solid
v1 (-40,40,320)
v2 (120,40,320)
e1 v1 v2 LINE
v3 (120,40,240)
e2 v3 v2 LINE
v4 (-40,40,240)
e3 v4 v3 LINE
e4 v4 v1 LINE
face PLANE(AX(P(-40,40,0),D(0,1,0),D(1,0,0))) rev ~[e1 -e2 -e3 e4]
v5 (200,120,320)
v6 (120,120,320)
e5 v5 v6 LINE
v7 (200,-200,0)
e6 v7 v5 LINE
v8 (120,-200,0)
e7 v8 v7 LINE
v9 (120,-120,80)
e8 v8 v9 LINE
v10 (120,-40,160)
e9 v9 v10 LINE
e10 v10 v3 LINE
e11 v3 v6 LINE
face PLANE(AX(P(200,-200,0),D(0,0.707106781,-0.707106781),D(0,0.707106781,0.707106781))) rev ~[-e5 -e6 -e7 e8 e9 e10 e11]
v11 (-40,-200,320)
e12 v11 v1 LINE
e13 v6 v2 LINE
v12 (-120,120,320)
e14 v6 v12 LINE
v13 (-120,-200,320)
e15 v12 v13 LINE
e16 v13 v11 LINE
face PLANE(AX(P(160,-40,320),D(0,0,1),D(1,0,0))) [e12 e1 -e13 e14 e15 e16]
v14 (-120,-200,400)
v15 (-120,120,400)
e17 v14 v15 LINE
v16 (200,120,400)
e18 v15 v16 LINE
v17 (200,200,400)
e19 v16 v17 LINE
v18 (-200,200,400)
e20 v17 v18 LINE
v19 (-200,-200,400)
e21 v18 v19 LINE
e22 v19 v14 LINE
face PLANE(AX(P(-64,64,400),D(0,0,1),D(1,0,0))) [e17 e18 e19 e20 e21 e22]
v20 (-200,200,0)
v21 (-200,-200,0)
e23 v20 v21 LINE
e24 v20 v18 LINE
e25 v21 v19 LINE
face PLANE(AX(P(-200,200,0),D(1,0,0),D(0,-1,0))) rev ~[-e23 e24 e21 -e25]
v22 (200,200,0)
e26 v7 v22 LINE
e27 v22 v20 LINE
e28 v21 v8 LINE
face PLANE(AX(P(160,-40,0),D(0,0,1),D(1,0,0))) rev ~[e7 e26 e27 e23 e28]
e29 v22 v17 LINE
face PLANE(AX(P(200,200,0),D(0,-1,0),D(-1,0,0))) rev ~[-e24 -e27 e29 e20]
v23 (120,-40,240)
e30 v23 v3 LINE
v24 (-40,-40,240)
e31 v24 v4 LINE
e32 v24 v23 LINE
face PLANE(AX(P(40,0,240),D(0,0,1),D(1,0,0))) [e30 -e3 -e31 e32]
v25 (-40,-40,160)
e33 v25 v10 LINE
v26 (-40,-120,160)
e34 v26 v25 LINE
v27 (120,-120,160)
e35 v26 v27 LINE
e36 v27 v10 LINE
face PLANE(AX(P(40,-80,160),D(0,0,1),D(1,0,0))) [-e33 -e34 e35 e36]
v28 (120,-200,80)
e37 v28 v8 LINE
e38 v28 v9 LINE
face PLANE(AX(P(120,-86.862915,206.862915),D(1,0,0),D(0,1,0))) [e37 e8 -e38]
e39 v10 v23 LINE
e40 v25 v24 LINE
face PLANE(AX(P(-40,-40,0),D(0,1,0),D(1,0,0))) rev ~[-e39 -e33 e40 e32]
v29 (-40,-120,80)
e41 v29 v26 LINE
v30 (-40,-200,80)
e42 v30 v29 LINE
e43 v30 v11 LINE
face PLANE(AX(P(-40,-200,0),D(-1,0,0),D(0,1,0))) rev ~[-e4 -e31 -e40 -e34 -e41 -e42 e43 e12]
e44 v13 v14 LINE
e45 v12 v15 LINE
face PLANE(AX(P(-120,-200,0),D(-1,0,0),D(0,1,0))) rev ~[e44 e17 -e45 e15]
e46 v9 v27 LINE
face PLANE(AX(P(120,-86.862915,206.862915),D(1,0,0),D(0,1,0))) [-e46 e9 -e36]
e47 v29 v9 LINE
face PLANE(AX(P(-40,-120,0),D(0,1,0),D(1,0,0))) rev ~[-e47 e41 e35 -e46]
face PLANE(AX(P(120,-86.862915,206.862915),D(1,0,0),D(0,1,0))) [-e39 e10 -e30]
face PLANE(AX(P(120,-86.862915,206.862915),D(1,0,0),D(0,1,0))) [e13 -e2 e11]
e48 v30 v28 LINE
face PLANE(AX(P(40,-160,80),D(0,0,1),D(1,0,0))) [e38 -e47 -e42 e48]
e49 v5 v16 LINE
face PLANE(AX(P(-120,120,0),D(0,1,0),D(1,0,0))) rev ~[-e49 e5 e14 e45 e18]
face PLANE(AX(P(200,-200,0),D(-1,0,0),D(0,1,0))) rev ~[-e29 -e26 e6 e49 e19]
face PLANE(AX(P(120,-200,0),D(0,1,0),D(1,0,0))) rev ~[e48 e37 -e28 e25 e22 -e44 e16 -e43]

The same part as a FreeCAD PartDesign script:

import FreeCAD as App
import Part
import Sketcher
from FreeCAD import Vector

doc = App.newDocument("Part")
body = doc.addObject("PartDesign::Body", "Body")

sketch1 = body.newObject("Sketcher::SketchObject", "Sketch")
sketch1.AttachmentSupport = (doc.getObject("XY_Plane"), [""])
sketch1.MapMode = "FlatFace"
sketch1.addGeometry(Part.LineSegment(Vector(200, 200, 0), Vector(-200, 200, 0)), False)
sketch1.addGeometry(Part.LineSegment(Vector(-200, 200, 0), Vector(-200, -200, 0)), False)
sketch1.addGeometry(Part.LineSegment(Vector(-200, -200, 0), Vector(-120, -200, 0)), False)
sketch1.addGeometry(Part.LineSegment(Vector(-120, -200, 0), Vector(-120, 120, 0)), False)
sketch1.addGeometry(Part.LineSegment(Vector(-120, 120, 0), Vector(200, 120, 0)), False)
sketch1.addGeometry(Part.LineSegment(Vector(200, 120, 0), Vector(200, 200, 0)), False)
sketch1.addConstraint(Sketcher.Constraint("Coincident", 0, 2, 1, 1))
sketch1.addConstraint(Sketcher.Constraint("Coincident", 1, 2, 2, 1))
sketch1.addConstraint(Sketcher.Constraint("Coincident", 2, 2, 3, 1))
sketch1.addConstraint(Sketcher.Constraint("Coincident", 3, 2, 4, 1))
sketch1.addConstraint(Sketcher.Constraint("Coincident", 4, 2, 5, 1))
sketch1.addConstraint(Sketcher.Constraint("Coincident", 5, 2, 0, 1))
sketch1.addConstraint(Sketcher.Constraint("Horizontal", 0))
sketch1.addConstraint(Sketcher.Constraint("Vertical", 1))
sketch1.addConstraint(Sketcher.Constraint("Horizontal", 2))
sketch1.addConstraint(Sketcher.Constraint("Vertical", 3))
sketch1.addConstraint(Sketcher.Constraint("Horizontal", 4))
sketch1.addConstraint(Sketcher.Constraint("Vertical", 5))
sketch1.addConstraint(Sketcher.Constraint("Symmetric", 1, 2, 5, 2, -1, 1))
sketch1.addConstraint(Sketcher.Constraint("Equal", 0, 1))
sketch1.addConstraint(Sketcher.Constraint("Equal", 4, 3))
sketch1.addConstraint(Sketcher.Constraint("DistanceX", 0, 2, 0, 1, 400.0))
sketch1.addConstraint(Sketcher.Constraint("DistanceX", 2, 1, 2, 2, 80.0))
pad1 = body.newObject("PartDesign::Pad", "Pad")
pad1.Profile = sketch1
pad1.Length = 400
body2 = doc.addObject("PartDesign::Body", "Body001")

sketch2 = body2.newObject("Sketcher::SketchObject", "Sketch001")
sketch2.AttachmentSupport = (doc.getObject("XY_Plane001"), [""])
sketch2.MapMode = "FlatFace"
sketch2.addGeometry(Part.LineSegment(Vector(-40, -120, 0), Vector(-40, -200, 0)), False)
sketch2.addGeometry(Part.LineSegment(Vector(-40, -200, 0), Vector(120, -200, 0)), False)
sketch2.addGeometry(Part.LineSegment(Vector(120, -200, 0), Vector(120, -120, 0)), False)
sketch2.addGeometry(Part.LineSegment(Vector(120, -120, 0), Vector(-40, -120, 0)), False)
sketch2.addConstraint(Sketcher.Constraint("Coincident", 0, 2, 1, 1))
sketch2.addConstraint(Sketcher.Constraint("Coincident", 1, 2, 2, 1))
sketch2.addConstraint(Sketcher.Constraint("Coincident", 2, 2, 3, 1))
sketch2.addConstraint(Sketcher.Constraint("Coincident", 3, 2, 0, 1))
sketch2.addConstraint(Sketcher.Constraint("Vertical", 0))
sketch2.addConstraint(Sketcher.Constraint("Horizontal", 1))
sketch2.addConstraint(Sketcher.Constraint("Vertical", 2))
sketch2.addConstraint(Sketcher.Constraint("Horizontal", 3))
sketch2.addConstraint(Sketcher.Constraint("DistanceX", 1, 1, 1, 2, 160.0))
sketch2.addConstraint(Sketcher.Constraint("DistanceY", 0, 2, 0, 1, 80.0))
sketch2.addConstraint(Sketcher.Constraint("DistanceX", 0, 2, -1, 1, 40.0))
sketch2.addConstraint(Sketcher.Constraint("DistanceY", 0, 2, -1, 1, 200.0))
pad2 = body2.newObject("PartDesign::Pad", "Pad001")
pad2.Profile = sketch2
pad2.Length = 80

sketch3 = body2.newObject("Sketcher::SketchObject", "Sketch002")
sketch3.AttachmentSupport = (doc.getObject("XY_Plane001"), [""])
sketch3.MapMode = "FlatFace"
sketch3.addGeometry(Part.LineSegment(Vector(-40, -40, 0), Vector(-40, -120, 0)), False)
sketch3.addGeometry(Part.LineSegment(Vector(-40, -120, 0), Vector(120, -120, 0)), False)
sketch3.addGeometry(Part.LineSegment(Vector(120, -120, 0), Vector(120, -40, 0)), False)
sketch3.addGeometry(Part.LineSegment(Vector(120, -40, 0), Vector(-40, -40, 0)), False)
sketch3.addConstraint(Sketcher.Constraint("Coincident", 0, 2, 1, 1))
sketch3.addConstraint(Sketcher.Constraint("Coincident", 1, 2, 2, 1))
sketch3.addConstraint(Sketcher.Constraint("Coincident", 2, 2, 3, 1))
sketch3.addConstraint(Sketcher.Constraint("Coincident", 3, 2, 0, 1))
sketch3.addConstraint(Sketcher.Constraint("Vertical", 0))
sketch3.addConstraint(Sketcher.Constraint("Horizontal", 1))
sketch3.addConstraint(Sketcher.Constraint("Vertical", 2))
sketch3.addConstraint(Sketcher.Constraint("Horizontal", 3))
sketch3.addConstraint(Sketcher.Constraint("DistanceX", 1, 1, 1, 2, 160.0))
sketch3.addConstraint(Sketcher.Constraint("DistanceY", 0, 2, 0, 1, 80.0))
sketch3.addConstraint(Sketcher.Constraint("DistanceX", 0, 2, -1, 1, 40.0))
sketch3.addConstraint(Sketcher.Constraint("DistanceY", 0, 2, -1, 1, 120.0))
pad3 = body2.newObject("PartDesign::Pad", "Pad002")
pad3.Profile = sketch3
pad3.Length = 160

sketch4 = body2.newObject("Sketcher::SketchObject", "Sketch003")
sketch4.AttachmentSupport = (doc.getObject("XY_Plane001"), [""])
sketch4.MapMode = "FlatFace"
sketch4.addGeometry(Part.LineSegment(Vector(-40, 40, 0), Vector(-40, -40, 0)), False)
sketch4.addGeometry(Part.LineSegment(Vector(-40, -40, 0), Vector(120, -40, 0)), False)
sketch4.addGeometry(Part.LineSegment(Vector(120, -40, 0), Vector(120, 40, 0)), False)
sketch4.addGeometry(Part.LineSegment(Vector(120, 40, 0), Vector(-40, 40, 0)), False)
sketch4.addConstraint(Sketcher.Constraint("Coincident", 0, 2, 1, 1))
sketch4.addConstraint(Sketcher.Constraint("Coincident", 1, 2, 2, 1))
sketch4.addConstraint(Sketcher.Constraint("Coincident", 2, 2, 3, 1))
sketch4.addConstraint(Sketcher.Constraint("Coincident", 3, 2, 0, 1))
sketch4.addConstraint(Sketcher.Constraint("Vertical", 0))
sketch4.addConstraint(Sketcher.Constraint("Horizontal", 1))
sketch4.addConstraint(Sketcher.Constraint("Vertical", 2))
sketch4.addConstraint(Sketcher.Constraint("Horizontal", 3))
sketch4.addConstraint(Sketcher.Constraint("DistanceX", 1, 1, 1, 2, 160.0))
sketch4.addConstraint(Sketcher.Constraint("DistanceY", 0, 2, 0, 1, 80.0))
sketch4.addConstraint(Sketcher.Constraint("DistanceX", 0, 2, -1, 1, 40.0))
sketch4.addConstraint(Sketcher.Constraint("DistanceY", 0, 2, -1, 1, 40.0))
pad4 = body2.newObject("PartDesign::Pad", "Pad003")
pad4.Profile = sketch4
pad4.Length = 240
body.AllowCompound = True
doc.recompute()

boolean = body.newObject("PartDesign::Boolean", "Boolean")
boolean.Type = "Fuse"
boolean.addObjects([body2])

sketch5 = body.newObject("Sketcher::SketchObject", "Sketch004")
sketch5.AttachmentSupport = (doc.getObject("XY_Plane"), [""])
sketch5.MapMode = "FlatFace"
sketch5.addGeometry(Part.LineSegment(Vector(-120, 120, 0), Vector(-120, -200, 0)), False)
sketch5.addGeometry(Part.LineSegment(Vector(-120, -200, 0), Vector(-40, -200, 0)), False)
sketch5.addGeometry(Part.LineSegment(Vector(-40, -200, 0), Vector(-40, 40, 0)), False)
sketch5.addGeometry(Part.LineSegment(Vector(-40, 40, 0), Vector(120, 40, 0)), False)
sketch5.addGeometry(Part.LineSegment(Vector(120, 40, 0), Vector(120, 120, 0)), False)
sketch5.addGeometry(Part.LineSegment(Vector(120, 120, 0), Vector(-120, 120, 0)), False)
sketch5.addConstraint(Sketcher.Constraint("Coincident", 0, 2, 1, 1))
sketch5.addConstraint(Sketcher.Constraint("Coincident", 1, 2, 2, 1))
sketch5.addConstraint(Sketcher.Constraint("Coincident", 2, 2, 3, 1))
sketch5.addConstraint(Sketcher.Constraint("Coincident", 3, 2, 4, 1))
sketch5.addConstraint(Sketcher.Constraint("Coincident", 4, 2, 5, 1))
sketch5.addConstraint(Sketcher.Constraint("Coincident", 5, 2, 0, 1))
sketch5.addConstraint(Sketcher.Constraint("Vertical", 0))
sketch5.addConstraint(Sketcher.Constraint("Horizontal", 1))
sketch5.addConstraint(Sketcher.Constraint("Vertical", 2))
sketch5.addConstraint(Sketcher.Constraint("Horizontal", 3))
sketch5.addConstraint(Sketcher.Constraint("Vertical", 4))
sketch5.addConstraint(Sketcher.Constraint("Horizontal", 5))
sketch5.addConstraint(Sketcher.Constraint("Equal", 5, 2))
sketch5.addConstraint(Sketcher.Constraint("Equal", 1, 4))
sketch5.addConstraint(Sketcher.Constraint("DistanceX", 1, 1, 1, 2, 80.0))
sketch5.addConstraint(Sketcher.Constraint("DistanceX", 3, 1, 3, 2, 160.0))
sketch5.addConstraint(Sketcher.Constraint("DistanceX", 0, 2, -1, 1, 120.0))
sketch5.addConstraint(Sketcher.Constraint("DistanceY", 0, 2, -1, 1, 200.0))
pad5 = body.newObject("PartDesign::Pad", "Pad004")
pad5.Profile = sketch5
pad5.Length = 320

sketch6 = body.newObject("Sketcher::SketchObject", "Sketch005")
sketch6.AttachmentSupport = (doc.getObject("XY_Plane"), [""])
sketch6.MapMode = "FlatFace"
sketch6.addGeometry(Part.LineSegment(Vector(200, -200, 0), Vector(200, 120, 0)), False)
sketch6.addGeometry(Part.LineSegment(Vector(200, 120, 0), Vector(120, 120, 0)), False)
sketch6.addGeometry(Part.LineSegment(Vector(120, 120, 0), Vector(120, -200, 0)), False)
sketch6.addGeometry(Part.LineSegment(Vector(120, -200, 0), Vector(200, -200, 0)), False)
sketch6.addConstraint(Sketcher.Constraint("Coincident", 0, 2, 1, 1))
sketch6.addConstraint(Sketcher.Constraint("Coincident", 1, 2, 2, 1))
sketch6.addConstraint(Sketcher.Constraint("Coincident", 2, 2, 3, 1))
sketch6.addConstraint(Sketcher.Constraint("Coincident", 3, 2, 0, 1))
sketch6.addConstraint(Sketcher.Constraint("Vertical", 0))
sketch6.addConstraint(Sketcher.Constraint("Horizontal", 1))
sketch6.addConstraint(Sketcher.Constraint("Vertical", 2))
sketch6.addConstraint(Sketcher.Constraint("Horizontal", 3))
sketch6.addConstraint(Sketcher.Constraint("DistanceX", 1, 2, 1, 1, 80.0))
sketch6.addConstraint(Sketcher.Constraint("DistanceY", 0, 1, 0, 2, 320.0))
sketch6.addConstraint(Sketcher.Constraint("DistanceX", -1, 1, 0, 2, 200.0))
sketch6.addConstraint(Sketcher.Constraint("DistanceY", -1, 1, 0, 2, 120.0))
pad6 = body.newObject("PartDesign::Pad", "Pad005")
pad6.Profile = sketch6
pad6.Length = 320

sketch7 = body.newObject("Sketcher::SketchObject", "Sketch006")
sketch7.AttachmentSupport = (doc.getObject("YZ_Plane"), [""])
sketch7.MapMode = "FlatFace"
sketch7.AttachmentOffset = App.Placement(Vector(0, 0, 200), App.Rotation())
sketch7.addGeometry(Part.LineSegment(Vector(-200, 0, 0), Vector(120, 320, 0)), False)
sketch7.addGeometry(Part.LineSegment(Vector(120, 320, 0), Vector(-200, 320, 0)), False)
sketch7.addGeometry(Part.LineSegment(Vector(-200, 320, 0), Vector(-200, 0, 0)), False)
sketch7.addConstraint(Sketcher.Constraint("Coincident", 0, 2, 1, 1))
sketch7.addConstraint(Sketcher.Constraint("Coincident", 1, 2, 2, 1))
sketch7.addConstraint(Sketcher.Constraint("Coincident", 2, 2, 0, 1))
sketch7.addConstraint(Sketcher.Constraint("Horizontal", 1))
sketch7.addConstraint(Sketcher.Constraint("Vertical", 2))
sketch7.addConstraint(Sketcher.Constraint("PointOnObject", 2, 2, -1))
sketch7.addConstraint(Sketcher.Constraint("Equal", 1, 2))
sketch7.addConstraint(Sketcher.Constraint("DistanceX", 1, 2, 1, 1, 320.0))
sketch7.addConstraint(Sketcher.Constraint("DistanceX", -1, 1, 0, 2, 120.0))
pocket1 = body.newObject("PartDesign::Pocket", "Pocket")
pocket1.Profile = sketch7
pocket1.Length = 80

doc.recompute()
